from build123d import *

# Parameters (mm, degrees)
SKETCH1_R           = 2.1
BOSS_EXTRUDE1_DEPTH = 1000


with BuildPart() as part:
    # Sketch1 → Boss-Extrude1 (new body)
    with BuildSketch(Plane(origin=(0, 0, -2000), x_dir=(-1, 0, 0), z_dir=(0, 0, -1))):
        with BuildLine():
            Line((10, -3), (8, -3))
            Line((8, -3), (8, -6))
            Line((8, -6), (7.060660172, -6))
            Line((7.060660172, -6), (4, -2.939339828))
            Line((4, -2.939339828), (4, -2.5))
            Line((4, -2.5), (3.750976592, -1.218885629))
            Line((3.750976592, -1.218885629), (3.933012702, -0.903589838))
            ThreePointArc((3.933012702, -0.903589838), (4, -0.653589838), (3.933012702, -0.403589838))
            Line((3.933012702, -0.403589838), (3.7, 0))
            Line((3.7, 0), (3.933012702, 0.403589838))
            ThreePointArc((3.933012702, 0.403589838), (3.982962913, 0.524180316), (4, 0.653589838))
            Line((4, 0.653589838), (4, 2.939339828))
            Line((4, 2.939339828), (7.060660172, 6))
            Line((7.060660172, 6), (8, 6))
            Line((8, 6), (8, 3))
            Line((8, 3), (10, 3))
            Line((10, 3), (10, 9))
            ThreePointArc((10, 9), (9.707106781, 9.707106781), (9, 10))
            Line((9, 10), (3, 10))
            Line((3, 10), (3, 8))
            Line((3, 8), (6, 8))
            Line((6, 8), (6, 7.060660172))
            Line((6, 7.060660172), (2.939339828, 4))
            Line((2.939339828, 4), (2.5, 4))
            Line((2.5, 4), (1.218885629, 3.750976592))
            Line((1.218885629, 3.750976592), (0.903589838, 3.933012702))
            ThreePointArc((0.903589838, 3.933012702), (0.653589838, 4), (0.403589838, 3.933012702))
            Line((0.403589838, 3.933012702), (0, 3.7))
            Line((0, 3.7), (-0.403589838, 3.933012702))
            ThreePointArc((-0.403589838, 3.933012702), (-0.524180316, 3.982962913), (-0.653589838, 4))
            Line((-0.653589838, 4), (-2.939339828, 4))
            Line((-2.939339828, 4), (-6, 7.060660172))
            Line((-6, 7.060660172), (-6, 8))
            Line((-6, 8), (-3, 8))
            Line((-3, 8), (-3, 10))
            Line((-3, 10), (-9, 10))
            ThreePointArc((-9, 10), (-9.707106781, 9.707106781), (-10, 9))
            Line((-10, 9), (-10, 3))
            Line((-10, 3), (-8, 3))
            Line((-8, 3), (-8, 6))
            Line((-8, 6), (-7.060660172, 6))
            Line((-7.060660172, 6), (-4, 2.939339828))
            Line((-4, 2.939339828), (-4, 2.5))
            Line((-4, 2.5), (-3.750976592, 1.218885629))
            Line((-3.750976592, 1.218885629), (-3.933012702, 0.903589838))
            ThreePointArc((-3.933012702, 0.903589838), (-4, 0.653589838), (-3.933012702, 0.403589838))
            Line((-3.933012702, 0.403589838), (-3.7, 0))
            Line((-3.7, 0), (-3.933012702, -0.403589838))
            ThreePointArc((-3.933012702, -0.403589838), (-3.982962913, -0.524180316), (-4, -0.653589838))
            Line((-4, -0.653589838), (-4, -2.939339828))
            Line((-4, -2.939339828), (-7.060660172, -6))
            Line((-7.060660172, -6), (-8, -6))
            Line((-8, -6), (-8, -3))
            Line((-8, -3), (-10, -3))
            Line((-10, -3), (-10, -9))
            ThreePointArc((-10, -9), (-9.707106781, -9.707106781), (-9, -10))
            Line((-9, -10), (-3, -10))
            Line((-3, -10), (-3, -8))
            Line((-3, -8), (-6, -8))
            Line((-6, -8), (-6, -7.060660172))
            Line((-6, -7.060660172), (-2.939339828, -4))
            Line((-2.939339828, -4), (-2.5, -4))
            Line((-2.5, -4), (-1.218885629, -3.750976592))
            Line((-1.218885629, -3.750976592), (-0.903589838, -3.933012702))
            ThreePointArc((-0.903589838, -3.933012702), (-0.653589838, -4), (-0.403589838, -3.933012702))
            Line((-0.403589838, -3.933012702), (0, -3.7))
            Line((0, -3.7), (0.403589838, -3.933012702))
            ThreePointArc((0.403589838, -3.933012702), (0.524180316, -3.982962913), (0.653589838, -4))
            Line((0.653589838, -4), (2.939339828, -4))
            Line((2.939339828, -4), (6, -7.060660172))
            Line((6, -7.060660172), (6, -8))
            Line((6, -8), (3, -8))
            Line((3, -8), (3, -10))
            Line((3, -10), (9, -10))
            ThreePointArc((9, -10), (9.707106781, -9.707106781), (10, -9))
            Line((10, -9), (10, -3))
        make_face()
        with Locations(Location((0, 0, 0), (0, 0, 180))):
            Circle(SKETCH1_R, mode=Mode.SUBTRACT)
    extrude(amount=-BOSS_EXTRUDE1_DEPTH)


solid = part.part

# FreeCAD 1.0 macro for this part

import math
import FreeCAD as App
import Part
import Sketcher
from FreeCAD import Vector
Q = App.Units.Quantity

doc = App.newDocument("Part")
body = doc.addObject("PartDesign::Body", "Body")

# Sketch on XY plane
sketch1 = body.newObject("Sketcher::SketchObject", "Sketch")
sketch1.AttachmentSupport = (doc.getObject("XY_Plane"), [""])
sketch1.MapMode = "FlatFace"
sketch1.AttachmentOffset = App.Placement(Vector(0, 0, -2000), App.Rotation())
sketch1.addGeometry(Part.LineSegment(Vector(-10, -3, 0), Vector(-8, -3, 0)), False)
sketch1.addGeometry(Part.LineSegment(Vector(-8, -3, 0), Vector(-8, -6, 0)), False)
sketch1.addGeometry(Part.LineSegment(Vector(-8, -6, 0), Vector(-7.06, -6, 0)), False)
sketch1.addGeometry(Part.LineSegment(Vector(-7.06, -6, 0), Vector(-4, -2.94, 0)), False)
sketch1.addGeometry(Part.LineSegment(Vector(-4, -2.94, 0), Vector(-4, -2.5, 0)), False)
sketch1.addGeometry(Part.LineSegment(Vector(-4, -2.5, 0), Vector(-3.75, -1.22, 0)), False)
sketch1.addGeometry(Part.LineSegment(Vector(-3.75, -1.22, 0), Vector(-3.93, -0.9, 0)), False)
sketch1.addGeometry(Part.ArcOfCircle(Part.Circle(Vector(-3.5, -0.65, 0), Vector(0, 0, 1), 0.5), math.radians(150), math.radians(210)), False)
sketch1.addGeometry(Part.LineSegment(Vector(-3.93, -0.4, 0), Vector(-3.7, 0, 0)), False)
sketch1.addGeometry(Part.LineSegment(Vector(-3.7, 0, 0), Vector(-3.93, 0.4, 0)), False)
sketch1.addGeometry(Part.ArcOfCircle(Part.Circle(Vector(-3.5, 0.65, 0), Vector(0, 0, 1), 0.5), math.radians(-180), math.radians(-150)), False)
sketch1.addGeometry(Part.LineSegment(Vector(-4, 0.65, 0), Vector(-4, 2.94, 0)), False)
sketch1.addGeometry(Part.LineSegment(Vector(-4, 2.94, 0), Vector(-7.06, 6, 0)), False)
sketch1.addGeometry(Part.LineSegment(Vector(-7.06, 6, 0), Vector(-8, 6, 0)), False)
sketch1.addGeometry(Part.LineSegment(Vector(-8, 6, 0), Vector(-8, 3, 0)), False)
sketch1.addGeometry(Part.LineSegment(Vector(-8, 3, 0), Vector(-10, 3, 0)), False)
sketch1.addGeometry(Part.LineSegment(Vector(-10, 3, 0), Vector(-10, 9, 0)), False)
sketch1.addGeometry(Part.ArcOfCircle(Part.Circle(Vector(-9, 9, 0), Vector(0, 0, 1), 1), math.radians(90), math.radians(180)), False)
sketch1.addGeometry(Part.LineSegment(Vector(-9, 10, 0), Vector(-3, 10, 0)), False)
sketch1.addGeometry(Part.LineSegment(Vector(-3, 10, 0), Vector(-3, 8, 0)), False)
sketch1.addGeometry(Part.LineSegment(Vector(-3, 8, 0), Vector(-6, 8, 0)), False)
sketch1.addGeometry(Part.LineSegment(Vector(-6, 8, 0), Vector(-6, 7.06, 0)), False)
sketch1.addGeometry(Part.LineSegment(Vector(-6, 7.06, 0), Vector(-2.94, 4, 0)), False)
sketch1.addGeometry(Part.LineSegment(Vector(-2.94, 4, 0), Vector(-2.5, 4, 0)), False)
sketch1.addGeometry(Part.LineSegment(Vector(-2.5, 4, 0), Vector(-1.22, 3.75, 0)), False)
sketch1.addGeometry(Part.LineSegment(Vector(-1.22, 3.75, 0), Vector(-0.9, 3.93, 0)), False)
sketch1.addGeometry(Part.ArcOfCircle(Part.Circle(Vector(-0.65, 3.5, 0), Vector(0, 0, 1), 0.5), math.radians(60), math.radians(120)), False)
sketch1.addGeometry(Part.LineSegment(Vector(-0.4, 3.93, 0), Vector(0, 3.7, 0)), False)
sketch1.addGeometry(Part.LineSegment(Vector(0, 3.7, 0), Vector(0.4, 3.93, 0)), False)
sketch1.addGeometry(Part.ArcOfCircle(Part.Circle(Vector(0.65, 3.5, 0), Vector(0, 0, 1), 0.5), math.radians(90), math.radians(120)), False)
sketch1.addGeometry(Part.LineSegment(Vector(0.65, 4, 0), Vector(2.94, 4, 0)), False)
sketch1.addGeometry(Part.LineSegment(Vector(2.94, 4, 0), Vector(6, 7.06, 0)), False)
sketch1.addGeometry(Part.LineSegment(Vector(6, 7.06, 0), Vector(6, 8, 0)), False)
sketch1.addGeometry(Part.LineSegment(Vector(6, 8, 0), Vector(3, 8, 0)), False)
sketch1.addGeometry(Part.LineSegment(Vector(3, 8, 0), Vector(3, 10, 0)), False)
sketch1.addGeometry(Part.LineSegment(Vector(3, 10, 0), Vector(9, 10, 0)), False)
sketch1.addGeometry(Part.ArcOfCircle(Part.Circle(Vector(9, 9, 0), Vector(0, 0, 1), 1), math.radians(0), math.radians(90)), False)
sketch1.addGeometry(Part.LineSegment(Vector(10, 9, 0), Vector(10, 3, 0)), False)
sketch1.addGeometry(Part.LineSegment(Vector(10, 3, 0), Vector(8, 3, 0)), False)
sketch1.addGeometry(Part.LineSegment(Vector(8, 3, 0), Vector(8, 6, 0)), False)
sketch1.addGeometry(Part.LineSegment(Vector(8, 6, 0), Vector(7.06, 6, 0)), False)
sketch1.addGeometry(Part.LineSegment(Vector(7.06, 6, 0), Vector(4, 2.94, 0)), False)
sketch1.addGeometry(Part.LineSegment(Vector(4, 2.94, 0), Vector(4, 2.5, 0)), False)
sketch1.addGeometry(Part.LineSegment(Vector(4, 2.5, 0), Vector(3.75, 1.22, 0)), False)
sketch1.addGeometry(Part.LineSegment(Vector(3.75, 1.22, 0), Vector(3.93, 0.9, 0)), False)
sketch1.addGeometry(Part.ArcOfCircle(Part.Circle(Vector(3.5, 0.65, 0), Vector(0, 0, 1), 0.5), math.radians(-30), math.radians(30)), False)
sketch1.addGeometry(Part.LineSegment(Vector(3.93, 0.4, 0), Vector(3.7, 0, 0)), False)
sketch1.addGeometry(Part.LineSegment(Vector(3.7, 0, 0), Vector(3.93, -0.4, 0)), False)
sketch1.addGeometry(Part.ArcOfCircle(Part.Circle(Vector(3.5, -0.65, 0), Vector(0, 0, 1), 0.5), math.radians(0), math.radians(30)), False)
sketch1.addGeometry(Part.LineSegment(Vector(4, -0.65, 0), Vector(4, -2.94, 0)), False)
sketch1.addGeometry(Part.LineSegment(Vector(4, -2.94, 0), Vector(7.06, -6, 0)), False)
sketch1.addGeometry(Part.LineSegment(Vector(7.06, -6, 0), Vector(8, -6, 0)), False)
sketch1.addGeometry(Part.LineSegment(Vector(8, -6, 0), Vector(8, -3, 0)), False)
sketch1.addGeometry(Part.LineSegment(Vector(8, -3, 0), Vector(10, -3, 0)), False)
sketch1.addGeometry(Part.LineSegment(Vector(10, -3, 0), Vector(10, -9, 0)), False)
sketch1.addGeometry(Part.ArcOfCircle(Part.Circle(Vector(9, -9, 0), Vector(0, 0, 1), 1), math.radians(-90), math.radians(0)), False)
sketch1.addGeometry(Part.LineSegment(Vector(9, -10, 0), Vector(3, -10, 0)), False)
sketch1.addGeometry(Part.LineSegment(Vector(3, -10, 0), Vector(3, -8, 0)), False)
sketch1.addGeometry(Part.LineSegment(Vector(3, -8, 0), Vector(6, -8, 0)), False)
sketch1.addGeometry(Part.LineSegment(Vector(6, -8, 0), Vector(6, -7.06, 0)), False)
sketch1.addGeometry(Part.LineSegment(Vector(6, -7.06, 0), Vector(2.94, -4, 0)), False)
sketch1.addGeometry(Part.LineSegment(Vector(2.94, -4, 0), Vector(2.5, -4, 0)), False)
sketch1.addGeometry(Part.LineSegment(Vector(2.5, -4, 0), Vector(1.22, -3.75, 0)), False)
sketch1.addGeometry(Part.LineSegment(Vector(1.22, -3.75, 0), Vector(0.9, -3.93, 0)), False)
sketch1.addGeometry(Part.ArcOfCircle(Part.Circle(Vector(0.65, -3.5, 0), Vector(0, 0, 1), 0.5), math.radians(-120), math.radians(-60)), False)
sketch1.addGeometry(Part.LineSegment(Vector(0.4, -3.93, 0), Vector(0, -3.7, 0)), False)
sketch1.addGeometry(Part.LineSegment(Vector(0, -3.7, 0), Vector(-0.4, -3.93, 0)), False)
sketch1.addGeometry(Part.ArcOfCircle(Part.Circle(Vector(-0.65, -3.5, 0), Vector(0, 0, 1), 0.5), math.radians(-90), math.radians(-60)), False)
sketch1.addGeometry(Part.LineSegment(Vector(-0.65, -4, 0), Vector(-2.94, -4, 0)), False)
sketch1.addGeometry(Part.LineSegment(Vector(-2.94, -4, 0), Vector(-6, -7.06, 0)), False)
sketch1.addGeometry(Part.LineSegment(Vector(-6, -7.06, 0), Vector(-6, -8, 0)), False)
sketch1.addGeometry(Part.LineSegment(Vector(-6, -8, 0), Vector(-3, -8, 0)), False)
sketch1.addGeometry(Part.LineSegment(Vector(-3, -8, 0), Vector(-3, -10, 0)), False)
sketch1.addGeometry(Part.LineSegment(Vector(-3, -10, 0), Vector(-9, -10, 0)), False)
sketch1.addGeometry(Part.ArcOfCircle(Part.Circle(Vector(-9, -9, 0), Vector(0, 0, 1), 1), math.radians(-180), math.radians(-90)), False)
sketch1.addGeometry(Part.LineSegment(Vector(-10, -9, 0), Vector(-10, -3, 0)), False)
sketch1.addGeometry(Part.Circle(Vector(0, 0, 0), Vector(0, 0, 1), 2.1), False)
sketch1.addConstraint(Sketcher.Constraint("Coincident", 0, 2, 1, 1))
sketch1.addConstraint(Sketcher.Constraint("Coincident", 1, 2, 2, 1))
sketch1.addConstraint(Sketcher.Constraint("Coincident", 2, 2, 3, 1))
sketch1.addConstraint(Sketcher.Constraint("Coincident", 3, 2, 4, 1))
sketch1.addConstraint(Sketcher.Constraint("Coincident", 4, 2, 5, 1))
sketch1.addConstraint(Sketcher.Constraint("Coincident", 5, 2, 6, 1))
sketch1.addConstraint(Sketcher.Constraint("Tangent", 6, 2, 7, 2))
sketch1.addConstraint(Sketcher.Constraint("Tangent", 7, 1, 8, 1))
sketch1.addConstraint(Sketcher.Constraint("Coincident", 8, 2, 9, 1))
sketch1.addConstraint(Sketcher.Constraint("Tangent", 9, 2, 10, 2))
sketch1.addConstraint(Sketcher.Constraint("Tangent", 10, 1, 11, 1))
sketch1.addConstraint(Sketcher.Constraint("Coincident", 11, 2, 12, 1))
sketch1.addConstraint(Sketcher.Constraint("Coincident", 12, 2, 13, 1))
sketch1.addConstraint(Sketcher.Constraint("Coincident", 13, 2, 14, 1))
sketch1.addConstraint(Sketcher.Constraint("Coincident", 14, 2, 15, 1))
sketch1.addConstraint(Sketcher.Constraint("Coincident", 15, 2, 16, 1))
sketch1.addConstraint(Sketcher.Constraint("Tangent", 16, 2, 17, 2))
sketch1.addConstraint(Sketcher.Constraint("Tangent", 17, 1, 18, 1))
sketch1.addConstraint(Sketcher.Constraint("Coincident", 18, 2, 19, 1))
sketch1.addConstraint(Sketcher.Constraint("Coincident", 19, 2, 20, 1))
sketch1.addConstraint(Sketcher.Constraint("Coincident", 20, 2, 21, 1))
sketch1.addConstraint(Sketcher.Constraint("Coincident", 21, 2, 22, 1))
sketch1.addConstraint(Sketcher.Constraint("Coincident", 22, 2, 23, 1))
sketch1.addConstraint(Sketcher.Constraint("Coincident", 23, 2, 24, 1))
sketch1.addConstraint(Sketcher.Constraint("Coincident", 24, 2, 25, 1))
sketch1.addConstraint(Sketcher.Constraint("Tangent", 25, 2, 26, 2))
sketch1.addConstraint(Sketcher.Constraint("Tangent", 26, 1, 27, 1))
sketch1.addConstraint(Sketcher.Constraint("Coincident", 27, 2, 28, 1))
sketch1.addConstraint(Sketcher.Constraint("Tangent", 28, 2, 29, 2))
sketch1.addConstraint(Sketcher.Constraint("Tangent", 29, 1, 30, 1))
sketch1.addConstraint(Sketcher.Constraint("Coincident", 30, 2, 31, 1))
sketch1.addConstraint(Sketcher.Constraint("Coincident", 31, 2, 32, 1))
sketch1.addConstraint(Sketcher.Constraint("Coincident", 32, 2, 33, 1))
sketch1.addConstraint(Sketcher.Constraint("Coincident", 33, 2, 34, 1))
sketch1.addConstraint(Sketcher.Constraint("Coincident", 34, 2, 35, 1))
sketch1.addConstraint(Sketcher.Constraint("Tangent", 35, 2, 36, 2))
sketch1.addConstraint(Sketcher.Constraint("Tangent", 36, 1, 37, 1))
sketch1.addConstraint(Sketcher.Constraint("Coincident", 37, 2, 38, 1))
sketch1.addConstraint(Sketcher.Constraint("Coincident", 38, 2, 39, 1))
sketch1.addConstraint(Sketcher.Constraint("Coincident", 39, 2, 40, 1))
sketch1.addConstraint(Sketcher.Constraint("Coincident", 40, 2, 41, 1))
sketch1.addConstraint(Sketcher.Constraint("Coincident", 41, 2, 42, 1))
sketch1.addConstraint(Sketcher.Constraint("Coincident", 42, 2, 43, 1))
sketch1.addConstraint(Sketcher.Constraint("Coincident", 43, 2, 44, 1))
sketch1.addConstraint(Sketcher.Constraint("Tangent", 44, 2, 45, 2))
sketch1.addConstraint(Sketcher.Constraint("Tangent", 45, 1, 46, 1))
sketch1.addConstraint(Sketcher.Constraint("Coincident", 46, 2, 47, 1))
sketch1.addConstraint(Sketcher.Constraint("Tangent", 47, 2, 48, 2))
sketch1.addConstraint(Sketcher.Constraint("Tangent", 48, 1, 49, 1))
sketch1.addConstraint(Sketcher.Constraint("Coincident", 49, 2, 50, 1))
sketch1.addConstraint(Sketcher.Constraint("Coincident", 50, 2, 51, 1))
sketch1.addConstraint(Sketcher.Constraint("Coincident", 51, 2, 52, 1))
sketch1.addConstraint(Sketcher.Constraint("Coincident", 52, 2, 53, 1))
sketch1.addConstraint(Sketcher.Constraint("Coincident", 53, 2, 54, 1))
sketch1.addConstraint(Sketcher.Constraint("Tangent", 54, 2, 55, 2))
sketch1.addConstraint(Sketcher.Constraint("Tangent", 55, 1, 56, 1))
sketch1.addConstraint(Sketcher.Constraint("Coincident", 56, 2, 57, 1))
sketch1.addConstraint(Sketcher.Constraint("Coincident", 57, 2, 58, 1))
sketch1.addConstraint(Sketcher.Constraint("Coincident", 58, 2, 59, 1))
sketch1.addConstraint(Sketcher.Constraint("Coincident", 59, 2, 60, 1))
sketch1.addConstraint(Sketcher.Constraint("Coincident", 60, 2, 61, 1))
sketch1.addConstraint(Sketcher.Constraint("Coincident", 61, 2, 62, 1))
sketch1.addConstraint(Sketcher.Constraint("Coincident", 62, 2, 63, 1))
sketch1.addConstraint(Sketcher.Constraint("Tangent", 63, 2, 64, 2))
sketch1.addConstraint(Sketcher.Constraint("Tangent", 64, 1, 65, 1))
sketch1.addConstraint(Sketcher.Constraint("Coincident", 65, 2, 66, 1))
sketch1.addConstraint(Sketcher.Constraint("Tangent", 66, 2, 67, 2))
sketch1.addConstraint(Sketcher.Constraint("Tangent", 67, 1, 68, 1))
sketch1.addConstraint(Sketcher.Constraint("Coincident", 68, 2, 69, 1))
sketch1.addConstraint(Sketcher.Constraint("Coincident", 69, 2, 70, 1))
sketch1.addConstraint(Sketcher.Constraint("Coincident", 70, 2, 71, 1))
sketch1.addConstraint(Sketcher.Constraint("Coincident", 71, 2, 72, 1))
sketch1.addConstraint(Sketcher.Constraint("Coincident", 72, 2, 73, 1))
sketch1.addConstraint(Sketcher.Constraint("Tangent", 73, 2, 74, 2))
sketch1.addConstraint(Sketcher.Constraint("Tangent", 74, 1, 75, 1))
sketch1.addConstraint(Sketcher.Constraint("Coincident", 75, 2, 0, 1))
sketch1.addConstraint(Sketcher.Constraint("Horizontal", 0))
sketch1.addConstraint(Sketcher.Constraint("Vertical", 1))
sketch1.addConstraint(Sketcher.Constraint("Horizontal", 2))
sketch1.addConstraint(Sketcher.Constraint("Vertical", 4))
sketch1.addConstraint(Sketcher.Constraint("Vertical", 11))
sketch1.addConstraint(Sketcher.Constraint("Horizontal", 13))
sketch1.addConstraint(Sketcher.Constraint("Vertical", 14))
sketch1.addConstraint(Sketcher.Constraint("Horizontal", 15))
sketch1.addConstraint(Sketcher.Constraint("Vertical", 16))
sketch1.addConstraint(Sketcher.Constraint("Horizontal", 18))
sketch1.addConstraint(Sketcher.Constraint("Vertical", 19))
sketch1.addConstraint(Sketcher.Constraint("Horizontal", 20))
sketch1.addConstraint(Sketcher.Constraint("Vertical", 21))
sketch1.addConstraint(Sketcher.Constraint("Horizontal", 23))
sketch1.addConstraint(Sketcher.Constraint("Horizontal", 30))
sketch1.addConstraint(Sketcher.Constraint("Vertical", 32))
sketch1.addConstraint(Sketcher.Constraint("Horizontal", 33))
sketch1.addConstraint(Sketcher.Constraint("Vertical", 34))
sketch1.addConstraint(Sketcher.Constraint("Horizontal", 35))
sketch1.addConstraint(Sketcher.Constraint("Vertical", 37))
sketch1.addConstraint(Sketcher.Constraint("Horizontal", 38))
sketch1.addConstraint(Sketcher.Constraint("Vertical", 39))
sketch1.addConstraint(Sketcher.Constraint("Horizontal", 40))
sketch1.addConstraint(Sketcher.Constraint("Vertical", 42))
sketch1.addConstraint(Sketcher.Constraint("Vertical", 49))
sketch1.addConstraint(Sketcher.Constraint("Horizontal", 51))
sketch1.addConstraint(Sketcher.Constraint("Vertical", 52))
sketch1.addConstraint(Sketcher.Constraint("Horizontal", 53))
sketch1.addConstraint(Sketcher.Constraint("Vertical", 54))
sketch1.addConstraint(Sketcher.Constraint("Horizontal", 56))
sketch1.addConstraint(Sketcher.Constraint("Vertical", 57))
sketch1.addConstraint(Sketcher.Constraint("Horizontal", 58))
sketch1.addConstraint(Sketcher.Constraint("Vertical", 59))
sketch1.addConstraint(Sketcher.Constraint("Horizontal", 61))
sketch1.addConstraint(Sketcher.Constraint("Horizontal", 68))
sketch1.addConstraint(Sketcher.Constraint("Vertical", 70))
sketch1.addConstraint(Sketcher.Constraint("Horizontal", 71))
sketch1.addConstraint(Sketcher.Constraint("Vertical", 72))
sketch1.addConstraint(Sketcher.Constraint("Horizontal", 73))
sketch1.addConstraint(Sketcher.Constraint("Vertical", 75))
sketch1.addConstraint(Sketcher.Constraint("Coincident", 76, 3, -1, 1))
sketch1.addConstraint(Sketcher.Constraint("Equal", 7, 10))
sketch1.addConstraint(Sketcher.Constraint("Equal", 10, 26))
sketch1.addConstraint(Sketcher.Constraint("Equal", 26, 29))
sketch1.addConstraint(Sketcher.Constraint("Equal", 17, 36))
sketch1.addConstraint(Sketcher.Constraint("Equal", 29, 45))
sketch1.addConstraint(Sketcher.Constraint("Equal", 45, 48))
sketch1.addConstraint(Sketcher.Constraint("Equal", 36, 55))
sketch1.addConstraint(Sketcher.Constraint("Equal", 48, 64))
sketch1.addConstraint(Sketcher.Constraint("Equal", 64, 67))
sketch1.addConstraint(Sketcher.Constraint("Equal", 55, 74))
sketch1.addConstraint(Sketcher.Constraint("Symmetric", 7, 3, 45, 3, -1, 1))
sketch1.addConstraint(Sketcher.Constraint("Symmetric", 10, 3, 48, 3, -1, 1))
sketch1.addConstraint(Sketcher.Constraint("Symmetric", 17, 3, 55, 3, -1, 1))
sketch1.addConstraint(Sketcher.Constraint("Symmetric", 26, 3, 64, 3, -1, 1))
sketch1.addConstraint(Sketcher.Constraint("Symmetric", 29, 3, 67, 3, -1, 1))
sketch1.addConstraint(Sketcher.Constraint("Symmetric", 36, 3, 74, 3, -1, 1))
sketch1.addConstraint(Sketcher.Constraint("Symmetric", 0, 2, 38, 2, -1, 1))
sketch1.addConstraint(Sketcher.Constraint("Symmetric", 2, 2, 40, 2, -1, 1))
sketch1.addConstraint(Sketcher.Constraint("Symmetric", 3, 2, 41, 2, -1, 1))
sketch1.addConstraint(Sketcher.Constraint("Symmetric", 5, 2, 43, 2, -1, 1))
sketch1.addConstraint(Sketcher.Constraint("Symmetric", 8, 2, 46, 2, -1, 1))
sketch1.addConstraint(Sketcher.Constraint("Symmetric", 12, 2, 50, 2, -1, 1))
sketch1.addConstraint(Sketcher.Constraint("Symmetric", 14, 2, 52, 2, -1, 1))
sketch1.addConstraint(Sketcher.Constraint("Symmetric", 19, 2, 57, 2, -1, 1))
sketch1.addConstraint(Sketcher.Constraint("Symmetric", 21, 2, 59, 2, -1, 1))
sketch1.addConstraint(Sketcher.Constraint("Symmetric", 22, 2, 60, 2, -1, 1))
sketch1.addConstraint(Sketcher.Constraint("Symmetric", 24, 2, 62, 2, -1, 1))
sketch1.addConstraint(Sketcher.Constraint("Symmetric", 27, 2, 65, 2, -1, 1))
sketch1.addConstraint(Sketcher.Constraint("Symmetric", 31, 2, 69, 2, -1, 1))
sketch1.addConstraint(Sketcher.Constraint("Symmetric", 33, 2, 71, 2, -1, 1))
sketch1.addConstraint(Sketcher.Constraint("Symmetric", 26, 3, 29, 3, -2))
sketch1.addConstraint(Sketcher.Constraint("Symmetric", 17, 3, 36, 3, -2))
sketch1.addConstraint(Sketcher.Constraint("Symmetric", 10, 3, 45, 3, -2))
sketch1.addConstraint(Sketcher.Constraint("Symmetric", 22, 2, 30, 2, -2))
sketch1.addConstraint(Sketcher.Constraint("Symmetric", 21, 2, 31, 2, -2))
sketch1.addConstraint(Sketcher.Constraint("Symmetric", 19, 2, 33, 2, -2))
sketch1.addConstraint(Sketcher.Constraint("Symmetric", 14, 2, 38, 2, -2))
sketch1.addConstraint(Sketcher.Constraint("Symmetric", 12, 2, 40, 2, -2))
sketch1.addConstraint(Sketcher.Constraint("Symmetric", 11, 2, 41, 2, -2))
sketch1.addConstraint(Sketcher.Constraint("PointOnObject", 8, 2, -1))
sketch1.addConstraint(Sketcher.Constraint("PointOnObject", 27, 2, -2))
sketch1.addConstraint(Sketcher.Constraint("Parallel", 6, 9))
sketch1.addConstraint(Sketcher.Constraint("Perpendicular", 3, 12))
sketch1.addConstraint(Sketcher.Constraint("Parallel", 12, 22))
sketch1.addConstraint(Sketcher.Constraint("Perpendicular", 5, 24))
sketch1.addConstraint(Sketcher.Constraint("Perpendicular", 9, 25))
sketch1.addConstraint(Sketcher.Constraint("Perpendicular", 8, 27))
sketch1.addConstraint(Sketcher.Constraint("Perpendicular", 24, 43))
sketch1.addConstraint(Sketcher.Constraint("Perpendicular", 41, 50))
sketch1.addConstraint(Sketcher.Constraint("Perpendicular", 43, 62))
sketch1.addConstraint(Sketcher.Constraint("Perpendicular", 60, 69))
sketch1.addConstraint(Sketcher.Constraint("Equal", 71, 1))
sketch1.addConstraint(Sketcher.Constraint("Equal", 61, 4))
sketch1.addConstraint(Sketcher.Constraint("Equal", 68, 11))
sketch1.addConstraint(Sketcher.Constraint("Equal", 73, 16))
sketch1.addConstraint(Sketcher.Constraint("Equal", 53, 19))
sketch1.addConstraint(Sketcher.Constraint("Equal", 51, 21))
sketch1.addConstraint(Sketcher.Constraint("Equal", 12, 22))
sketch1.addConstraint(Sketcher.Constraint("Equal", 9, 27))
sketch1.addConstraint(Sketcher.Constraint("Radius", 17, Q("1 mm")))
sketch1.addConstraint(Sketcher.Constraint("Diameter", 76, Q("4.2 mm")))
sketch1.addConstraint(Sketcher.Constraint("Radius", 7, Q("0.5 mm")))
sketch1.addConstraint(Sketcher.Constraint("DistanceX", 0, 1, 0, 2, Q("2 mm")))
sketch1.addConstraint(Sketcher.Constraint("DistanceX", 18, 1, 18, 2, Q("6 mm")))
sketch1.addConstraint(Sketcher.Constraint("DistanceX", 20, 2, 20, 1, Q("3 mm")))
sketch1.addConstraint(Sketcher.Constraint("Angle", 5, Q("79 deg")))
sketch1.addConstraint(Sketcher.Constraint("Angle", 6, Q("120 deg")))
sketch1.addConstraint(Sketcher.Constraint("DistanceX", 17, 3, -1, 1, Q("9 mm")))
sketch1.addConstraint(Sketcher.Constraint("DistanceX", 3, 2, -1, 1, Q("4 mm")))
sketch1.addConstraint(Sketcher.Constraint("DistanceY", 4, 2, -1, 1, Q("2.5 mm")))
sketch1.addConstraint(Sketcher.Constraint("DistanceX", 8, 2, -1, 1, Q("3.7 mm")))
sketch1.addConstraint(Sketcher.Constraint("DistanceX", 2, 1, 2, 2, Q("0.93934 mm")))
pad1 = body.newObject("PartDesign::Pad", "Pad")
pad1.Profile = sketch1
pad1.Length = 1000

doc.recompute()
